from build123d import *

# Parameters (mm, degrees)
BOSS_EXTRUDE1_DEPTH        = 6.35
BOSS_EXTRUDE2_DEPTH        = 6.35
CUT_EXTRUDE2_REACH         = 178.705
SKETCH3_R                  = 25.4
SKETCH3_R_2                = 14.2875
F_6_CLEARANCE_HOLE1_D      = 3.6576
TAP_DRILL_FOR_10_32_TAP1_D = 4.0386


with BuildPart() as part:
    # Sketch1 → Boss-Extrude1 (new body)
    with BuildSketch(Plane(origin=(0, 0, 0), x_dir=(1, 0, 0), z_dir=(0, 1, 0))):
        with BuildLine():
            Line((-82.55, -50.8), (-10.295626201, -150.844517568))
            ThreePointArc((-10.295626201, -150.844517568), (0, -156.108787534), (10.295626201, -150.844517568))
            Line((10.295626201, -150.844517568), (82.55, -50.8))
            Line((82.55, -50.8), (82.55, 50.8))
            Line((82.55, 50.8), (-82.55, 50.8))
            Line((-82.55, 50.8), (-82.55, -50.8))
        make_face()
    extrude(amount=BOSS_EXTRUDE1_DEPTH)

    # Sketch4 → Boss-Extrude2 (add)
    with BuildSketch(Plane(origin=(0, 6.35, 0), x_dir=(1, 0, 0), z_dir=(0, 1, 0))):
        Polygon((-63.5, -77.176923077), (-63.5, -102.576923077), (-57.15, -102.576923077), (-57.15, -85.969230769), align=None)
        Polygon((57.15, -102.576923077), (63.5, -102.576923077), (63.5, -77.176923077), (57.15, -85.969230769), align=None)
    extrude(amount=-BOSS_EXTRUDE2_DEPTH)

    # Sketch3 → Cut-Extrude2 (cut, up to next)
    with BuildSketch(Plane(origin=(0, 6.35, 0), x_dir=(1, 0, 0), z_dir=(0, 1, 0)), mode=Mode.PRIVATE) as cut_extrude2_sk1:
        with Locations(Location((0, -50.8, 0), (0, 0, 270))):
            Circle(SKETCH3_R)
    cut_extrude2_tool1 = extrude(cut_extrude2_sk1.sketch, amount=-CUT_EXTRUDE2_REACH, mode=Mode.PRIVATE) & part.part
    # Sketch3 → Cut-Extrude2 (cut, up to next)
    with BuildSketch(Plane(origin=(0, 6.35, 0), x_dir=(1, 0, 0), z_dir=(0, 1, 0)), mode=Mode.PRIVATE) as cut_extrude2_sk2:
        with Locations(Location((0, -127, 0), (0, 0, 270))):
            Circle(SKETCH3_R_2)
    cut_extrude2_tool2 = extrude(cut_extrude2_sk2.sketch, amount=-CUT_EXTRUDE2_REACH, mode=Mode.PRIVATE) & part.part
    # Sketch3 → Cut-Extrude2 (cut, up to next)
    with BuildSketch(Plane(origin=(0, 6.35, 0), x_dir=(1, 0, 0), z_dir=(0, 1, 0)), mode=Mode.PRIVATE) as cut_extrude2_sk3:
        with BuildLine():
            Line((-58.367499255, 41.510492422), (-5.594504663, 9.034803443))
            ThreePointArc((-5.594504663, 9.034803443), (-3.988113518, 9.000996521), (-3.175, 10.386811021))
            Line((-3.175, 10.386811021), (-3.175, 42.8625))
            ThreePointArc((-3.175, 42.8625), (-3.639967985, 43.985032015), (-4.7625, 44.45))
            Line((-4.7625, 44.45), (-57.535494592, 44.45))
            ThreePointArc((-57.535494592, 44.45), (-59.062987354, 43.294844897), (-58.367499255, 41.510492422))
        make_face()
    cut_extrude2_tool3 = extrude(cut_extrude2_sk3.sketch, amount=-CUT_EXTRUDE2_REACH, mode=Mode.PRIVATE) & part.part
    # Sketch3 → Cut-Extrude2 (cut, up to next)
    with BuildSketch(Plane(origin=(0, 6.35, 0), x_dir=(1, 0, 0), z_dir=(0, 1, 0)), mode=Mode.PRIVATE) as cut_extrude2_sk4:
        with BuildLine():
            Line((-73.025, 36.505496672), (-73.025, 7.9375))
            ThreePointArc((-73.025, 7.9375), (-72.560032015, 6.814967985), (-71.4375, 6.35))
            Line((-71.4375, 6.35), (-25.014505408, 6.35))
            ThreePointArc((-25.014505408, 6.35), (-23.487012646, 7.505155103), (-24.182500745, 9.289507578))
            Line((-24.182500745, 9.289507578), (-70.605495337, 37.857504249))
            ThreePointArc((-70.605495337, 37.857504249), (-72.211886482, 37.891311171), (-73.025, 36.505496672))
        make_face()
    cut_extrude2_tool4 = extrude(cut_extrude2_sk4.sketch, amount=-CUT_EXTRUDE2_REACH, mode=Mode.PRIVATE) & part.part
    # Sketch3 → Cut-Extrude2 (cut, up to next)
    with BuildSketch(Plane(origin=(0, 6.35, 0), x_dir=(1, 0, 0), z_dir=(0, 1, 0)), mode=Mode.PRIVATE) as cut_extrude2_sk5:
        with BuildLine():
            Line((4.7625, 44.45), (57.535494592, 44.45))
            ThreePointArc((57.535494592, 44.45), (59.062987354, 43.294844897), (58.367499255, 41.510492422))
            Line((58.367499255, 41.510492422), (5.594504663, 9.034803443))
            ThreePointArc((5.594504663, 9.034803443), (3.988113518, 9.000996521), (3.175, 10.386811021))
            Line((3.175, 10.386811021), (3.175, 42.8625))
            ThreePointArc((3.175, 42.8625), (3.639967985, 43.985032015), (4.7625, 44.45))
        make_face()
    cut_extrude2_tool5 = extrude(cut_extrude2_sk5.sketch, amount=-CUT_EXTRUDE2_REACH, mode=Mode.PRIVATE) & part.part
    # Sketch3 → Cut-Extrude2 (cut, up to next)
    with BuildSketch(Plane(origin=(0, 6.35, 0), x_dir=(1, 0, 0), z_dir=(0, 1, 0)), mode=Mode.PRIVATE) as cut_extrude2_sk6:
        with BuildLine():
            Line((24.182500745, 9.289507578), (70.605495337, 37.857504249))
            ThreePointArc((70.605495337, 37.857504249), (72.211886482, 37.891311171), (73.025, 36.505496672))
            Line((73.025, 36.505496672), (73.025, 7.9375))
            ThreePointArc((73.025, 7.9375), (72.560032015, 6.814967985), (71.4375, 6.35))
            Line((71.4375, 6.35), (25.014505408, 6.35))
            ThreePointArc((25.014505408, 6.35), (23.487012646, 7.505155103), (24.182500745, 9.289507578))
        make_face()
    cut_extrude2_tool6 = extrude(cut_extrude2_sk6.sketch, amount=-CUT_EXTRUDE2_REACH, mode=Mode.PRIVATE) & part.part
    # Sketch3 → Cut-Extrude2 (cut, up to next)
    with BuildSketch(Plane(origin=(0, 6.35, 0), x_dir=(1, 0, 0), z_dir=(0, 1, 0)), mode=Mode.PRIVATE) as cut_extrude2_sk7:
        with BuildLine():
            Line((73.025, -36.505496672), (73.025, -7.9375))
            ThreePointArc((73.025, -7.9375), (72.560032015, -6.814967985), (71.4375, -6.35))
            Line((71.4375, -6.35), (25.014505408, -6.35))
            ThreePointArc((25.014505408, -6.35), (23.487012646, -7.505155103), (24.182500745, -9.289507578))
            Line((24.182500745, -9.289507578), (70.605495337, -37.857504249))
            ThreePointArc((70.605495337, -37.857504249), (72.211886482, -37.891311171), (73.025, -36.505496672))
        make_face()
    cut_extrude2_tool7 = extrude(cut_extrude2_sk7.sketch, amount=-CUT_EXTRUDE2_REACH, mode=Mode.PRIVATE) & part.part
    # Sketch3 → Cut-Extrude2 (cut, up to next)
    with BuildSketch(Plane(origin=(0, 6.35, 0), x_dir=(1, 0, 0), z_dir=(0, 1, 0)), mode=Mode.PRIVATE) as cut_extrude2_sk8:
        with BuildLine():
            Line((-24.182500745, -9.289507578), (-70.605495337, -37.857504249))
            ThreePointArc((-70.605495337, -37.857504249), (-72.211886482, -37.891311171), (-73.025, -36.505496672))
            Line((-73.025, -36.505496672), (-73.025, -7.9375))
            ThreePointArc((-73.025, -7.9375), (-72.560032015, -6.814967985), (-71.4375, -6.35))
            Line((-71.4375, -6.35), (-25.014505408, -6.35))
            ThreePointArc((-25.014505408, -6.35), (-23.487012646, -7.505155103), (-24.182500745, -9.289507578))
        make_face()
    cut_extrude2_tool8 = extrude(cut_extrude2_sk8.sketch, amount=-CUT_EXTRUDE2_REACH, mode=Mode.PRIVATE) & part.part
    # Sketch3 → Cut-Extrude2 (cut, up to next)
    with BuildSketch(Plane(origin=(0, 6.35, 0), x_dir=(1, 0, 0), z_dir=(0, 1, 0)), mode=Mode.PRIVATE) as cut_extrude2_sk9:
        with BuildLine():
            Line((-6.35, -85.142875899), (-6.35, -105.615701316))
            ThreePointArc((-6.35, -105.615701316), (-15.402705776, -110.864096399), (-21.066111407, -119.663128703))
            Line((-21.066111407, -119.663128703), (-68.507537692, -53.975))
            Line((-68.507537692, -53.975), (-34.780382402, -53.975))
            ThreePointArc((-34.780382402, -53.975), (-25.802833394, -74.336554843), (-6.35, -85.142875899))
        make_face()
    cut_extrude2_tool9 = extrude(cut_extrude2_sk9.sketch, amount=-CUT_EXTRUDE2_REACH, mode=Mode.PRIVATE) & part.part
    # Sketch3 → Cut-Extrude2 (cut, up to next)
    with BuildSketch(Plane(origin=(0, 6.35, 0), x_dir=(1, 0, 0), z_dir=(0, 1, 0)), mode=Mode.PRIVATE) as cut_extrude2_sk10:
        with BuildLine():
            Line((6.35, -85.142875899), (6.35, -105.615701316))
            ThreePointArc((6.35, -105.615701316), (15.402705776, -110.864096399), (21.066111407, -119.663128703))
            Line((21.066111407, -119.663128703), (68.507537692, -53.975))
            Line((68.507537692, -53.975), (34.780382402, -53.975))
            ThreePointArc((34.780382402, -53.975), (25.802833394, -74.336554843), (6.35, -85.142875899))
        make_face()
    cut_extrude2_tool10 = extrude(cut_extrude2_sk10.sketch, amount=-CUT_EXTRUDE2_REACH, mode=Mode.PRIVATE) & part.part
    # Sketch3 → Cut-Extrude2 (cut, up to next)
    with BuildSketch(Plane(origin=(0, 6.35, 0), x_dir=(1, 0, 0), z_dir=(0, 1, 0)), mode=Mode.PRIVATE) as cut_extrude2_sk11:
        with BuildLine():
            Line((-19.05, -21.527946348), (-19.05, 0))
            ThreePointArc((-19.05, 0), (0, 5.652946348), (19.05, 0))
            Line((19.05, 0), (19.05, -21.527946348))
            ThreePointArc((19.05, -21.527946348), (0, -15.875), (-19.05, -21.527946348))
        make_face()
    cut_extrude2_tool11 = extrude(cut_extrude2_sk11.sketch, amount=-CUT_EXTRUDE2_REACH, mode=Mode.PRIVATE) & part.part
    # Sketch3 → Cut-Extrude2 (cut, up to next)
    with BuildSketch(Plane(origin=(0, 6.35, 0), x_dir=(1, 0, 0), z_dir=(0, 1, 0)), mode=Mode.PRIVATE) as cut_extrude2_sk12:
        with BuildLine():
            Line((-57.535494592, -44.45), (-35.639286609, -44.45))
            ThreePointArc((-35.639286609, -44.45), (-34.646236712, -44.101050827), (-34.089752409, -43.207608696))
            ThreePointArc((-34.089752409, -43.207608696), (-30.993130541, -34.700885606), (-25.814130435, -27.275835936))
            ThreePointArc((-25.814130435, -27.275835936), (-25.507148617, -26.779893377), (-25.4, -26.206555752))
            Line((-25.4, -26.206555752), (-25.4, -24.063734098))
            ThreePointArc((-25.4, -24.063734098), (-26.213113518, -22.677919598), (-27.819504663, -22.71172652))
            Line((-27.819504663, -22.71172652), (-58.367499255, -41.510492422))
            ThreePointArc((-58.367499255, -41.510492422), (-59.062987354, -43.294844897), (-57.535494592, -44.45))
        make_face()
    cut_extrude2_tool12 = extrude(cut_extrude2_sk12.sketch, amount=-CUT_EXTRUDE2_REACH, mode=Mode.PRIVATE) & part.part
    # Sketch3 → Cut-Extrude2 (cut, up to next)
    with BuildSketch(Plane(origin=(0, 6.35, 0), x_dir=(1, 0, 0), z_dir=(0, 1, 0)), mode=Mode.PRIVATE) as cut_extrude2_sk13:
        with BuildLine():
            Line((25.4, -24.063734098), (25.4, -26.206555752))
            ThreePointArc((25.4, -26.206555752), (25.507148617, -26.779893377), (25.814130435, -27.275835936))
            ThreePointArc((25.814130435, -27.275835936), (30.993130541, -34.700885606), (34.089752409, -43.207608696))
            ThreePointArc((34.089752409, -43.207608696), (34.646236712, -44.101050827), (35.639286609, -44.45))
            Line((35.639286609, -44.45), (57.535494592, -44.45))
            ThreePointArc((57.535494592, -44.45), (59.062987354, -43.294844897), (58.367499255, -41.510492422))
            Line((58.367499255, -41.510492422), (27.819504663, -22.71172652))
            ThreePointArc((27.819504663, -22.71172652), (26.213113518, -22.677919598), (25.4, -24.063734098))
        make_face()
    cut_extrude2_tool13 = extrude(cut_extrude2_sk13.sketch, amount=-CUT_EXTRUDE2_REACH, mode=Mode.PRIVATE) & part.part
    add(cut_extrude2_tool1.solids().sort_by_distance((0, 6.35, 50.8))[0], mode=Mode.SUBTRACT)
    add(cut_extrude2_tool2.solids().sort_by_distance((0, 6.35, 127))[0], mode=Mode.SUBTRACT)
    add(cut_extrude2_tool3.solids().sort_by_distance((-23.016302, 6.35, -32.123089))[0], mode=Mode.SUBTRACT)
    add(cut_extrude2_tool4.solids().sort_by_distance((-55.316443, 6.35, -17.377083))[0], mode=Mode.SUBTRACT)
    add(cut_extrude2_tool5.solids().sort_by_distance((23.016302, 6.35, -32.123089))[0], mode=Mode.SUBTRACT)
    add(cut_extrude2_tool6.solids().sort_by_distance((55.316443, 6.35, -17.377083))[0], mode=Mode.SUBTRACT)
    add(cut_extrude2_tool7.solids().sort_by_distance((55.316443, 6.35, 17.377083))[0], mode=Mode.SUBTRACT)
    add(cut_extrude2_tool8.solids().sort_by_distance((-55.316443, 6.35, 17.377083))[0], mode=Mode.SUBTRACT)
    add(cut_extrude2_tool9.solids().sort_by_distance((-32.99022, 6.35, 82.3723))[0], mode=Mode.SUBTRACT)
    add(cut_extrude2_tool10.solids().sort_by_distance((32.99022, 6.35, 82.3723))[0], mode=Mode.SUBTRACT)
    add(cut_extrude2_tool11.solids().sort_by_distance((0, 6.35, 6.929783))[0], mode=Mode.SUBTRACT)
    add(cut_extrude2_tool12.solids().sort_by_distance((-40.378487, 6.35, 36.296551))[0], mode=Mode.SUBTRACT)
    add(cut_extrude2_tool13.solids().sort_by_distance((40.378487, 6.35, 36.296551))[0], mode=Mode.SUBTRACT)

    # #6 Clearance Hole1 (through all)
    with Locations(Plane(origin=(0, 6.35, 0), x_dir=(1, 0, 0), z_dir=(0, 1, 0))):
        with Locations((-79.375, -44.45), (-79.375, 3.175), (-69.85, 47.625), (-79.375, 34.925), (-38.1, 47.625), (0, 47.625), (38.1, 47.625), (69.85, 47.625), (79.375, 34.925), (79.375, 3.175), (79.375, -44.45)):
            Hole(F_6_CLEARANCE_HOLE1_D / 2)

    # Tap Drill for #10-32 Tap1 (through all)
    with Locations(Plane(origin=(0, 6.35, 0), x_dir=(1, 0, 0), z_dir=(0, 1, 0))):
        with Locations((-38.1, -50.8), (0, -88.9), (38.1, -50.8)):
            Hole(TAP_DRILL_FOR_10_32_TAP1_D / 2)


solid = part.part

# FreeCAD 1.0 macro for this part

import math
import FreeCAD as App
import Part
import Sketcher

V = App.Vector
Q = App.Units.Quantity

doc = App.newDocument("Part")
body = doc.addObject("PartDesign::Body", "Body")

sketch1 = body.newObject("Sketcher::SketchObject", "Sketch")
sketch1.AttachmentSupport = (doc.getObject("XZ_Plane"), [""])
sketch1.MapMode = "FlatFace"
sketch1.addGeometry([
    Part.LineSegment(V(-83, 51, 0), V(-10, 151, 0)),
    Part.ArcOfCircle(Part.Circle(V(0, 143, 0), V(0, 0, 1), 13), math.radians(36), math.radians(144)),
    Part.LineSegment(V(10, 151, 0), V(83, 51, 0)),
    Part.LineSegment(V(83, 51, 0), V(83, -51, 0)),
    Part.LineSegment(V(83, -51, 0), V(-83, -51, 0)),
    Part.LineSegment(V(-83, -51, 0), V(-83, 51, 0)),
], False)
sketch1.addConstraint([
    Sketcher.Constraint("Tangent", 0, 2, 1, 2),
    Sketcher.Constraint("Tangent", 1, 1, 2, 1),
    Sketcher.Constraint("Coincident", 2, 2, 3, 1),
    Sketcher.Constraint("Coincident", 3, 2, 4, 1),
    Sketcher.Constraint("Coincident", 4, 2, 5, 1),
    Sketcher.Constraint("Coincident", 5, 2, 0, 1),
    Sketcher.Constraint("Vertical", 3),
    Sketcher.Constraint("Horizontal", 4),
    Sketcher.Constraint("Vertical", 5),
    Sketcher.Constraint("Symmetric", 2, 2, 4, 2, -1, 1),
    Sketcher.Constraint("Symmetric", 0, 2, 1, 1, -2),
    Sketcher.Constraint("Radius", 1, Q("0.5 in")),
    Sketcher.Constraint("DistanceY", 3, 2, 3, 1, Q("4 in")),
    Sketcher.Constraint("DistanceX", 4, 2, 4, 1, Q("6.5 in")),
    Sketcher.Constraint("DistanceY", 1, 3, 0, 2, 7.43573),
])
pad1 = body.newObject("PartDesign::Pad", "Pad")
pad1.Profile = sketch1
pad1.Length = Q("0.25 in")
pad1.Reversed = True

sketch2 = body.newObject("Sketcher::SketchObject", "Sketch001")
sketch2.AttachmentSupport = (doc.getObject("XZ_Plane"), [""])
sketch2.MapMode = "FlatFace"
sketch2.AttachmentOffset = App.Placement(V(0, 0, -0.25 * 25.4), App.Rotation())
sketch2.addGeometry([
    Part.LineSegment(V(-64, 77, 0), V(-64, 103, 0)),
    Part.LineSegment(V(-64, 103, 0), V(-57, 103, 0)),
    Part.LineSegment(V(-57, 103, 0), V(-57, 86, 0)),
    Part.LineSegment(V(-57, 86, 0), V(-64, 77, 0)),
    Part.LineSegment(V(57, 103, 0), V(64, 103, 0)),
    Part.LineSegment(V(64, 103, 0), V(64, 77, 0)),
    Part.LineSegment(V(64, 77, 0), V(57, 86, 0)),
    Part.LineSegment(V(57, 86, 0), V(57, 103, 0)),
], False)
sketch2.addConstraint([
    Sketcher.Constraint("Coincident", 0, 2, 1, 1),
    Sketcher.Constraint("Coincident", 1, 2, 2, 1),
    Sketcher.Constraint("Coincident", 2, 2, 3, 1),
    Sketcher.Constraint("Coincident", 3, 2, 0, 1),
    Sketcher.Constraint("Coincident", 4, 2, 5, 1),
    Sketcher.Constraint("Coincident", 5, 2, 6, 1),
    Sketcher.Constraint("Coincident", 6, 2, 7, 1),
    Sketcher.Constraint("Coincident", 7, 2, 4, 1),
    Sketcher.Constraint("Vertical", 0),
    Sketcher.Constraint("Horizontal", 1),
    Sketcher.Constraint("Vertical", 2),
    Sketcher.Constraint("Horizontal", 4),
    Sketcher.Constraint("Vertical", 5),
    Sketcher.Constraint("Vertical", 7),
    Sketcher.Constraint("Symmetric", 0, 2, 4, 2, -2),
    Sketcher.Constraint("Symmetric", 2, 2, 6, 2, -2),
    Sketcher.Constraint("Horizontal", 3, 2, 5, 2),
    Sketcher.Constraint("DistanceY", 0, 1, 0, 2, Q("1 in")),
    Sketcher.Constraint("DistanceX", 0, 2, 4, 2, Q("5 in")),
    Sketcher.Constraint("DistanceX", 1, 1, 1, 2, Q("0.25 in")),
    Sketcher.Constraint("DistanceY", 2, 2, 2, 1, 16.607692),
    Sketcher.Constraint("DistanceY", -1, 1, 2, 2, 85.969231),
])
pad2 = body.newObject("PartDesign::Pad", "Pad001")
pad2.Profile = sketch2
pad2.Length = Q("0.25 in")

sketch3 = body.newObject("Sketcher::SketchObject", "Sketch002")
sketch3.AttachmentSupport = (doc.getObject("XZ_Plane"), [""])
sketch3.MapMode = "FlatFace"
sketch3.AttachmentOffset = App.Placement(V(0, 0, -0.25 * 25.4), App.Rotation())
sketch3.addGeometry(Part.Circle(V(0, 51, 0), V(0, 0, 1), 25), False)
sketch3.addConstraint([
    Sketcher.Constraint("PointOnObject", 0, 3, -2),
    Sketcher.Constraint("Diameter", 0, Q("2 in")),
    Sketcher.Constraint("DistanceY", -1, 1, 0, 3, Q("2 in")),
])
pocket1 = body.newObject("PartDesign::Pocket", "Pocket")
pocket1.Profile = sketch3
pocket1.Type = "UpToFirst"
pocket1.Reversed = True

sketch4 = body.newObject("Sketcher::SketchObject", "Sketch003")
sketch4.AttachmentSupport = (doc.getObject("XZ_Plane"), [""])
sketch4.MapMode = "FlatFace"
sketch4.AttachmentOffset = App.Placement(V(0, 0, -0.25 * 25.4), App.Rotation())
sketch4.addGeometry(Part.Circle(V(0, 127, 0), V(0, 0, 1), 14), False)
sketch4.addConstraint([
    Sketcher.Constraint("PointOnObject", 0, 3, -2),
    Sketcher.Constraint("Diameter", 0, Q("1.125 in")),
    Sketcher.Constraint("DistanceY", -1, 1, 0, 3, Q("5 in")),
])
pocket2 = body.newObject("PartDesign::Pocket", "Pocket001")
pocket2.Profile = sketch4
pocket2.Type = "UpToFirst"
pocket2.Reversed = True

sketch5 = body.newObject("Sketcher::SketchObject", "Sketch004")
sketch5.AttachmentSupport = (doc.getObject("XZ_Plane"), [""])
sketch5.MapMode = "FlatFace"
sketch5.AttachmentOffset = App.Placement(V(0, 0, -0.25 * 25.4), App.Rotation())
sketch5.addGeometry([
    Part.LineSegment(V(-58.4, -41.5, 0), V(-5.6, -9, 0)),
    Part.ArcOfCircle(Part.Circle(V(-4.8, -10.4, 0), V(0, 0, 1), 1.6), math.radians(0), math.radians(122)),
    Part.LineSegment(V(-3.2, -10.4, 0), V(-3.2, -42.9, 0)),
    Part.ArcOfCircle(Part.Circle(V(-4.8, -42.9, 0), V(0, 0, 1), 1.6), math.radians(-90), math.radians(0)),
    Part.LineSegment(V(-4.8, -44.5, 0), V(-57.5, -44.5, 0)),
    Part.ArcOfCircle(Part.Circle(V(-57.5, -42.9, 0), V(0, 0, 1), 1.6), math.radians(122), math.radians(270)),
], False)
sketch5.addConstraint([
    Sketcher.Constraint("Tangent", 0, 2, 1, 2),
    Sketcher.Constraint("Tangent", 1, 1, 2, 1),
    Sketcher.Constraint("Tangent", 2, 2, 3, 2),
    Sketcher.Constraint("Tangent", 3, 1, 4, 1),
    Sketcher.Constraint("Tangent", 4, 2, 5, 2),
    Sketcher.Constraint("Tangent", 5, 1, 0, 1),
    Sketcher.Constraint("Vertical", 2),
    Sketcher.Constraint("Horizontal", 4),
    Sketcher.Constraint("Equal", 1, 3),
    Sketcher.Constraint("Equal", 3, 5),
    Sketcher.Constraint("Radius", 1, Q("0.0625 in")),
    Sketcher.Constraint("DistanceY", 3, 1, -1, 1, Q("1.75 in")),
    Sketcher.Constraint("DistanceX", 1, 3, -1, 1, Q("0.1875 in")),
    Sketcher.Constraint("DistanceY", 2, 2, 2, 1, 32.475689),
    Sketcher.Constraint("DistanceX", 5, 1, -1, 1, 58.367499),
])
pocket3 = body.newObject("PartDesign::Pocket", "Pocket002")
pocket3.Profile = sketch5
pocket3.Type = "UpToFirst"
pocket3.Reversed = True

sketch6 = body.newObject("Sketcher::SketchObject", "Sketch005")
sketch6.AttachmentSupport = (doc.getObject("XZ_Plane"), [""])
sketch6.MapMode = "FlatFace"
sketch6.AttachmentOffset = App.Placement(V(0, 0, -0.25 * 25.4), App.Rotation())
sketch6.addGeometry([
    Part.LineSegment(V(-73.025, -36.505497, 0), V(-73.025, -7.9375, 0)),
    Part.ArcOfCircle(Part.Circle(V(-71.4375, -7.9375, 0), V(0, 0, 1), 1.5875), math.radians(90), math.radians(180)),
    Part.LineSegment(V(-71.4375, -6.35, 0), V(-25.014505, -6.35, 0)),
    Part.ArcOfCircle(Part.Circle(V(-25.014505, -7.9375, 0), V(0, 0, 1), 1.5875), math.radians(-58.392498), math.radians(90)),
    Part.LineSegment(V(-24.182501, -9.289508, 0), V(-70.605495, -37.857504, 0)),
    Part.ArcOfCircle(Part.Circle(V(-71.4375, -36.505497, 0), V(0, 0, 1), 1.5875), math.radians(180), math.radians(301.607502)),
], False)
sketch6.addConstraint([
    Sketcher.Constraint("Tangent", 0, 2, 1, 2),
    Sketcher.Constraint("Tangent", 1, 1, 2, 1),
    Sketcher.Constraint("Tangent", 2, 2, 3, 2),
    Sketcher.Constraint("Tangent", 3, 1, 4, 1),
    Sketcher.Constraint("Tangent", 4, 2, 5, 2),
    Sketcher.Constraint("Tangent", 5, 1, 0, 1),
    Sketcher.Constraint("Vertical", 0),
    Sketcher.Constraint("Horizontal", 2),
    Sketcher.Constraint("Equal", 1, 3),
    Sketcher.Constraint("Equal", 3, 5),
    Sketcher.Constraint("Radius", 1, Q("0.0625 in")),
    Sketcher.Constraint("DistanceY", 1, 1, -1, 1, Q("0.25 in")),
    Sketcher.Constraint("DistanceX", 1, 3, -1, 1, Q("2.8125 in")),
    Sketcher.Constraint("DistanceX", 3, 1, -1, 1, 24.182501),
    Sketcher.Constraint("DistanceX", 2, 1, 2, 2, 46.422995),
])
pocket4 = body.newObject("PartDesign::Pocket", "Pocket003")
pocket4.Profile = sketch6
pocket4.Type = "UpToFirst"
pocket4.Reversed = True

sketch7 = body.newObject("Sketcher::SketchObject", "Sketch006")
sketch7.AttachmentSupport = (doc.getObject("XZ_Plane"), [""])
sketch7.MapMode = "FlatFace"
sketch7.AttachmentOffset = App.Placement(V(0, 0, -0.25 * 25.4), App.Rotation())
sketch7.addGeometry([
    Part.LineSegment(V(57.5, -44.5, 0), V(4.8, -44.5, 0)),
    Part.ArcOfCircle(Part.Circle(V(4.8, -42.9, 0), V(0, 0, 1), 1.6), math.radians(180), math.radians(270)),
    Part.LineSegment(V(3.2, -42.9, 0), V(3.2, -10.4, 0)),
    Part.ArcOfCircle(Part.Circle(V(4.8, -10.4, 0), V(0, 0, 1), 1.6), math.radians(58), math.radians(180)),
    Part.LineSegment(V(5.6, -9, 0), V(58.4, -41.5, 0)),
    Part.ArcOfCircle(Part.Circle(V(57.5, -42.9, 0), V(0, 0, 1), 1.6), math.radians(-90), math.radians(58)),
], False)
sketch7.addConstraint([
    Sketcher.Constraint("Tangent", 0, 2, 1, 2),
    Sketcher.Constraint("Tangent", 1, 1, 2, 1),
    Sketcher.Constraint("Tangent", 2, 2, 3, 2),
    Sketcher.Constraint("Tangent", 3, 1, 4, 1),
    Sketcher.Constraint("Tangent", 4, 2, 5, 2),
    Sketcher.Constraint("Tangent", 5, 1, 0, 1),
    Sketcher.Constraint("Horizontal", 0),
    Sketcher.Constraint("Vertical", 2),
    Sketcher.Constraint("Equal", 1, 3),
    Sketcher.Constraint("Equal", 3, 5),
    Sketcher.Constraint("Radius", 1, Q("0.0625 in")),
    Sketcher.Constraint("DistanceY", 0, 2, -1, 1, Q("1.75 in")),
    Sketcher.Constraint("DistanceX", -1, 1, 1, 3, Q("0.1875 in")),
    Sketcher.Constraint("DistanceY", 2, 1, 2, 2, 32.475689),
    Sketcher.Constraint("DistanceX", -1, 1, 4, 2, 58.367499),
])
pocket5 = body.newObject("PartDesign::Pocket", "Pocket004")
pocket5.Profile = sketch7
pocket5.Type = "UpToFirst"
pocket5.Reversed = True

sketch8 = body.newObject("Sketcher::SketchObject", "Sketch007")
sketch8.AttachmentSupport = (doc.getObject("XZ_Plane"), [""])
sketch8.MapMode = "FlatFace"
sketch8.AttachmentOffset = App.Placement(V(0, 0, -0.25 * 25.4), App.Rotation())
sketch8.addGeometry([
    Part.LineSegment(V(70.605495, -37.857504, 0), V(24.182501, -9.289508, 0)),
    Part.ArcOfCircle(Part.Circle(V(25.014505, -7.9375, 0), V(0, 0, 1), 1.5875), math.radians(90), math.radians(238.392498)),
    Part.LineSegment(V(25.014505, -6.35, 0), V(71.4375, -6.35, 0)),
    Part.ArcOfCircle(Part.Circle(V(71.4375, -7.9375, 0), V(0, 0, 1), 1.5875), math.radians(0), math.radians(90)),
    Part.LineSegment(V(73.025, -7.9375, 0), V(73.025, -36.505497, 0)),
    Part.ArcOfCircle(Part.Circle(V(71.4375, -36.505497, 0), V(0, 0, 1), 1.5875), math.radians(-121.607502), math.radians(0)),
], False)
sketch8.addConstraint([
    Sketcher.Constraint("Coincident", 0, 2, 1, 2),
    Sketcher.Constraint("Coincident", 1, 1, 2, 1),
    Sketcher.Constraint("Coincident", 2, 2, 3, 2),
    Sketcher.Constraint("Coincident", 3, 1, 4, 1),
    Sketcher.Constraint("Coincident", 4, 2, 5, 2),
    Sketcher.Constraint("Coincident", 5, 1, 0, 1),
    Sketcher.Constraint("Horizontal", 2),
    Sketcher.Constraint("Vertical", 4),
    Sketcher.Constraint("Radius", 1, Q("0.0625 in")),
    Sketcher.Constraint("Radius", 3, Q("0.0625 in")),
    Sketcher.Constraint("Radius", 5, Q("0.0625 in")),
    Sketcher.Constraint("DistanceY", 1, 1, -1, 1, Q("0.25 in")),
    Sketcher.Constraint("DistanceX", -1, 1, 3, 3, Q("2.8125 in")),
    Sketcher.Constraint("DistanceX", -1, 1, 2, 2, Q("2.8125 in")),
    Sketcher.Constraint("DistanceY", 3, 1, -1, 1, Q("0.3125 in")),
    Sketcher.Constraint("DistanceX", -1, 1, 0, 2, 24.182501),
    Sketcher.Constraint("DistanceX", 2, 1, 2, 2, 46.422995),
    Sketcher.Constraint("DistanceY", 4, 2, 4, 1, 28.567997),
    Sketcher.Constraint("DistanceY", 5, 3, 0, 2, 27.215989),
    Sketcher.Constraint("Distance", 0, 54.508943),
    Sketcher.Constraint("DistanceX", -1, 1, 1, 3, 25.014505),
])
pocket6 = body.newObject("PartDesign::Pocket", "Pocket005")
pocket6.Profile = sketch8
pocket6.Type = "UpToFirst"
pocket6.Reversed = True

sketch9 = body.newObject("Sketcher::SketchObject", "Sketch008")
sketch9.AttachmentSupport = (doc.getObject("XZ_Plane"), [""])
sketch9.MapMode = "FlatFace"
sketch9.AttachmentOffset = App.Placement(V(0, 0, -0.25 * 25.4), App.Rotation())
sketch9.addGeometry([
    Part.LineSegment(V(73.025, 36.505497, 0), V(73.025, 7.9375, 0)),
    Part.ArcOfCircle(Part.Circle(V(71.4375, 7.9375, 0), V(0, 0, 1), 1.5875), math.radians(-90), math.radians(0)),
    Part.LineSegment(V(71.4375, 6.35, 0), V(25.014505, 6.35, 0)),
    Part.ArcOfCircle(Part.Circle(V(25.014505, 7.9375, 0), V(0, 0, 1), 1.5875), math.radians(121.607502), math.radians(270)),
    Part.LineSegment(V(24.182501, 9.289508, 0), V(70.605495, 37.857504, 0)),
    Part.ArcOfCircle(Part.Circle(V(71.4375, 36.505497, 0), V(0, 0, 1), 1.5875), math.radians(0), math.radians(121.607502)),
], False)
sketch9.addConstraint([
    Sketcher.Constraint("Coincident", 0, 2, 1, 2),
    Sketcher.Constraint("Coincident", 1, 1, 2, 1),
    Sketcher.Constraint("Coincident", 2, 2, 3, 2),
    Sketcher.Constraint("Coincident", 3, 1, 4, 1),
    Sketcher.Constraint("Coincident", 4, 2, 5, 2),
    Sketcher.Constraint("Coincident", 5, 1, 0, 1),
    Sketcher.Constraint("Vertical", 0),
    Sketcher.Constraint("Horizontal", 2),
    Sketcher.Constraint("Radius", 1, Q("0.0625 in")),
    Sketcher.Constraint("Radius", 3, Q("0.0625 in")),
    Sketcher.Constraint("Radius", 5, Q("0.0625 in")),
    Sketcher.Constraint("DistanceY", -1, 1, 1, 1, Q("0.25 in")),
    Sketcher.Constraint("DistanceX", -1, 1, 1, 3, Q("2.8125 in")),
    Sketcher.Constraint("DistanceY", -1, 1, 0, 2, Q("0.3125 in")),
    Sketcher.Constraint("DistanceX", -1, 1, 1, 1, Q("2.8125 in")),
    Sketcher.Constraint("DistanceX", -1, 1, 3, 1, 24.182501),
    Sketcher.Constraint("DistanceX", 2, 2, 2, 1, 46.422995),
    Sketcher.Constraint("DistanceY", 0, 2, 0, 1, 28.567997),
    Sketcher.Constraint("Distance", 4, 54.508943),
    Sketcher.Constraint("DistanceX", -1, 1, 3, 3, 25.014505),
    Sketcher.Constraint("DistanceY", -1, 1, 5, 3, 36.505497),
])
pocket7 = body.newObject("PartDesign::Pocket", "Pocket006")
pocket7.Profile = sketch9
pocket7.Type = "UpToFirst"
pocket7.Reversed = True

sketch10 = body.newObject("Sketcher::SketchObject", "Sketch009")
sketch10.AttachmentSupport = (doc.getObject("XZ_Plane"), [""])
sketch10.MapMode = "FlatFace"
sketch10.AttachmentOffset = App.Placement(V(0, 0, -0.25 * 25.4), App.Rotation())
sketch10.addGeometry([
    Part.LineSegment(V(-70.605495, 37.857504, 0), V(-24.182501, 9.289508, 0)),
    Part.ArcOfCircle(Part.Circle(V(-25.014505, 7.9375, 0), V(0, 0, 1), 1.5875), math.radians(-90), math.radians(58.392498)),
    Part.LineSegment(V(-25.014505, 6.35, 0), V(-71.4375, 6.35, 0)),
    Part.ArcOfCircle(Part.Circle(V(-71.4375, 7.9375, 0), V(0, 0, 1), 1.5875), math.radians(180), math.radians(270)),
    Part.LineSegment(V(-73.025, 7.9375, 0), V(-73.025, 36.505497, 0)),
    Part.ArcOfCircle(Part.Circle(V(-71.4375, 36.505497, 0), V(0, 0, 1), 1.5875), math.radians(58.392498), math.radians(180)),
], False)
sketch10.addConstraint([
    Sketcher.Constraint("Tangent", 0, 2, 1, 2),
    Sketcher.Constraint("Tangent", 1, 1, 2, 1),
    Sketcher.Constraint("Tangent", 2, 2, 3, 2),
    Sketcher.Constraint("Tangent", 3, 1, 4, 1),
    Sketcher.Constraint("Tangent", 4, 2, 5, 2),
    Sketcher.Constraint("Tangent", 5, 1, 0, 1),
    Sketcher.Constraint("Horizontal", 2),
    Sketcher.Constraint("Vertical", 4),
    Sketcher.Constraint("Equal", 1, 3),
    Sketcher.Constraint("Equal", 3, 5),
    Sketcher.Constraint("Radius", 1, Q("0.0625 in")),
    Sketcher.Constraint("DistanceY", -1, 1, 1, 1, Q("0.25 in")),
    Sketcher.Constraint("DistanceX", 3, 3, -1, 1, Q("2.8125 in")),
    Sketcher.Constraint("DistanceX", 0, 2, -1, 1, 24.182501),
    Sketcher.Constraint("DistanceX", 2, 2, 2, 1, 46.422995),
])
pocket8 = body.newObject("PartDesign::Pocket", "Pocket007")
pocket8.Profile = sketch10
pocket8.Type = "UpToFirst"
pocket8.Reversed = True

sketch11 = body.newObject("Sketcher::SketchObject", "Sketch010")
sketch11.AttachmentSupport = (doc.getObject("XZ_Plane"), [""])
sketch11.MapMode = "FlatFace"
sketch11.AttachmentOffset = App.Placement(V(0, 0, -0.25 * 25.4), App.Rotation())
sketch11.addGeometry([
    Part.LineSegment(V(-6, 106, 0), V(-6, 85, 0)),
    Part.ArcOfCircle(Part.Circle(V(0, 51, 0), V(0, 0, 1), 35), math.radians(100), math.radians(175)),
    Part.LineSegment(V(-35, 54, 0), V(-69, 54, 0)),
    Part.LineSegment(V(-69, 54, 0), V(-21, 120, 0)),
    Part.ArcOfCircle(Part.Circle(V(0, 127, 0), V(0, 0, 1), 22), math.radians(-161), math.radians(-107)),
], False)
sketch11.addConstraint([
    Sketcher.Constraint("Coincident", 0, 2, 1, 1),
    Sketcher.Constraint("Coincident", 1, 2, 2, 1),
    Sketcher.Constraint("Coincident", 2, 2, 3, 1),
    Sketcher.Constraint("Coincident", 3, 2, 4, 1),
    Sketcher.Constraint("Coincident", 4, 2, 0, 1),
    Sketcher.Constraint("Vertical", 0),
    Sketcher.Constraint("Horizontal", 2),
    Sketcher.Constraint("PointOnObject", 1, 3, -2),
    Sketcher.Constraint("PointOnObject", 4, 3, -2),
    Sketcher.Constraint("DistanceY", -1, 1, 1, 3, Q("2 in")),
    Sketcher.Constraint("DistanceY", -1, 1, 4, 3, Q("5 in")),
    Sketcher.Constraint("Radius", 1, Q("1.375 in")),
    Sketcher.Constraint("DistanceX", 0, 2, -1, 1, Q("0.25 in")),
    Sketcher.Constraint("DistanceY", -1, 1, 1, 2, Q("2.125 in")),
    Sketcher.Constraint("Radius", 4, 22.30719),
    Sketcher.Constraint("Distance", 3, 81.028508),
    Sketcher.Constraint("DistanceX", 2, 2, 2, 1, 33.727155),
])
pocket9 = body.newObject("PartDesign::Pocket", "Pocket008")
pocket9.Profile = sketch11
pocket9.Type = "UpToFirst"
pocket9.Reversed = True

sketch12 = body.newObject("Sketcher::SketchObject", "Sketch011")
sketch12.AttachmentSupport = (doc.getObject("XZ_Plane"), [""])
sketch12.MapMode = "FlatFace"
sketch12.AttachmentOffset = App.Placement(V(0, 0, -0.25 * 25.4), App.Rotation())
sketch12.addGeometry([
    Part.LineSegment(V(6, 85, 0), V(6, 106, 0)),
    Part.ArcOfCircle(Part.Circle(V(0, 127, 0), V(0, 0, 1), 22), math.radians(-73), math.radians(-19)),
    Part.LineSegment(V(21, 120, 0), V(69, 54, 0)),
    Part.LineSegment(V(69, 54, 0), V(35, 54, 0)),
    Part.ArcOfCircle(Part.Circle(V(0, 51, 0), V(0, 0, 1), 35), math.radians(5), math.radians(80)),
], False)
sketch12.addConstraint([
    Sketcher.Constraint("Coincident", 0, 2, 1, 1),
    Sketcher.Constraint("Coincident", 1, 2, 2, 1),
    Sketcher.Constraint("Coincident", 2, 2, 3, 1),
    Sketcher.Constraint("Coincident", 3, 2, 4, 1),
    Sketcher.Constraint("Coincident", 4, 2, 0, 1),
    Sketcher.Constraint("Vertical", 0),
    Sketcher.Constraint("Horizontal", 3),
    Sketcher.Constraint("PointOnObject", 1, 3, -2),
    Sketcher.Constraint("PointOnObject", 4, 3, -2),
    Sketcher.Constraint("DistanceY", -1, 1, 1, 3, Q("5 in")),
    Sketcher.Constraint("DistanceY", -1, 1, 4, 3, Q("2 in")),
    Sketcher.Constraint("Radius", 4, Q("1.375 in")),
    Sketcher.Constraint("DistanceX", -1, 1, 0, 2, Q("0.25 in")),
    Sketcher.Constraint("DistanceY", -1, 1, 2, 2, Q("2.125 in")),
    Sketcher.Constraint("Radius", 1, 22.30719),
    Sketcher.Constraint("Distance", 2, 81.028508),
    Sketcher.Constraint("DistanceX", 3, 2, 3, 1, 33.727155),
])
pocket10 = body.newObject("PartDesign::Pocket", "Pocket009")
pocket10.Profile = sketch12
pocket10.Type = "UpToFirst"
pocket10.Reversed = True

sketch13 = body.newObject("Sketcher::SketchObject", "Sketch012")
sketch13.AttachmentSupport = (doc.getObject("XZ_Plane"), [""])
sketch13.MapMode = "FlatFace"
sketch13.AttachmentOffset = App.Placement(V(0, 0, -0.25 * 25.4), App.Rotation())
sketch13.addGeometry([
    Part.LineSegment(V(-19, 0, 0), V(-19, 22, 0)),
    Part.ArcOfCircle(Part.Circle(V(0, 51, 0), V(0, 0, 1), 35), math.radians(-123), math.radians(-57)),
    Part.LineSegment(V(19, 22, 0), V(19, 0, 0)),
    Part.ArcOfCircle(Part.Circle(V(0, 29, 0), V(0, 0, 1), 35), math.radians(-123), math.radians(-57)),
], False)
sketch13.addConstraint([
    Sketcher.Constraint("Coincident", 0, 2, 1, 1),
    Sketcher.Constraint("Coincident", 1, 2, 2, 1),
    Sketcher.Constraint("Coincident", 2, 2, 3, 2),
    Sketcher.Constraint("Coincident", 3, 1, 0, 1),
    Sketcher.Constraint("Vertical", 0),
    Sketcher.Constraint("Vertical", 2),
    Sketcher.Constraint("Equal", 1, 3),
    Sketcher.Constraint("Symmetric", 2, 2, 3, 1, -1, 1),
    Sketcher.Constraint("PointOnObject", 1, 3, -2),
    Sketcher.Constraint("PointOnObject", 3, 3, -2),
    Sketcher.Constraint("DistanceY", -1, 1, 1, 3, Q("2 in")),
    Sketcher.Constraint("Radius", 1, Q("1.375 in")),
    Sketcher.Constraint("DistanceX", 0, 2, 1, 2, Q("1.5 in")),
])
pocket11 = body.newObject("PartDesign::Pocket", "Pocket010")
pocket11.Profile = sketch13
pocket11.Type = "UpToFirst"
pocket11.Reversed = True

sketch14 = body.newObject("Sketcher::SketchObject", "Sketch013")
sketch14.AttachmentSupport = (doc.getObject("XZ_Plane"), [""])
sketch14.MapMode = "FlatFace"
sketch14.AttachmentOffset = App.Placement(V(0, 0, -0.25 * 25.4), App.Rotation())
sketch14.addGeometry([
    Part.LineSegment(V(-57.5, 44.5, 0), V(-35.6, 44.5, 0)),
    Part.ArcOfCircle(Part.Circle(V(-35.6, 42.9, 0), V(0, 0, 1), 1.6), math.radians(13), math.radians(90)),
    Part.ArcOfCircle(Part.Circle(V(0, 50.8, 0), V(0, 0, 1), 34.9), math.radians(-167), math.radians(-138)),
    Part.ArcOfCircle(Part.Circle(V(-27, 26.2, 0), V(0, 0, 1), 1.6), math.radians(0), math.radians(42)),
    Part.LineSegment(V(-25.4, 26.2, 0), V(-25.4, 24.1, 0)),
    Part.ArcOfCircle(Part.Circle(V(-27, 24.1, 0), V(0, 0, 1), 1.6), math.radians(-122), math.radians(0)),
    Part.LineSegment(V(-27.8, 22.7, 0), V(-58.4, 41.5, 0)),
    Part.ArcOfCircle(Part.Circle(V(-57.5, 42.9, 0), V(0, 0, 1), 1.6), math.radians(90), math.radians(238)),
], False)
sketch14.addConstraint([
    Sketcher.Constraint("Tangent", 0, 2, 1, 2),
    Sketcher.Constraint("Tangent", 1, 1, 2, 1),
    Sketcher.Constraint("Tangent", 2, 2, 3, 2),
    Sketcher.Constraint("Tangent", 3, 1, 4, 1),
    Sketcher.Constraint("Tangent", 4, 2, 5, 2),
    Sketcher.Constraint("Tangent", 5, 1, 6, 1),
    Sketcher.Constraint("Tangent", 6, 2, 7, 2),
    Sketcher.Constraint("Tangent", 7, 1, 0, 1),
    Sketcher.Constraint("Horizontal", 0),
    Sketcher.Constraint("Vertical", 4),
    Sketcher.Constraint("Equal", 1, 3),
    Sketcher.Constraint("Equal", 3, 5),
    Sketcher.Constraint("Equal", 5, 7),
    Sketcher.Constraint("PointOnObject", 2, 3, -2),
    Sketcher.Constraint("DistanceY", -1, 1, 2, 3, Q("2 in")),
    Sketcher.Constraint("DistanceX", 3, 1, -1, 1, Q("1 in")),
    Sketcher.Constraint("Radius", 1, Q("0.0625 in")),
    Sketcher.Constraint("Radius", 2, Q("1.375 in")),
    Sketcher.Constraint("DistanceY", -1, 1, 0, 2, Q("1.75 in")),
    Sketcher.Constraint("DistanceY", 4, 2, 4, 1, 2.142822),
    Sketcher.Constraint("DistanceX", 6, 2, -1, 1, 58.367499),
])
pocket12 = body.newObject("PartDesign::Pocket", "Pocket011")
pocket12.Profile = sketch14
pocket12.Type = "UpToFirst"
pocket12.Reversed = True

sketch15 = body.newObject("Sketcher::SketchObject", "Sketch014")
sketch15.AttachmentSupport = (doc.getObject("XZ_Plane"), [""])
sketch15.MapMode = "FlatFace"
sketch15.AttachmentOffset = App.Placement(V(0, 0, -0.25 * 25.4), App.Rotation())
sketch15.addGeometry([
    Part.LineSegment(V(25.4, 24.1, 0), V(25.4, 26.2, 0)),
    Part.ArcOfCircle(Part.Circle(V(27, 26.2, 0), V(0, 0, 1), 1.6), math.radians(138), math.radians(180)),
    Part.ArcOfCircle(Part.Circle(V(0, 50.8, 0), V(0, 0, 1), 34.9), math.radians(-42), math.radians(-13)),
    Part.ArcOfCircle(Part.Circle(V(35.6, 42.9, 0), V(0, 0, 1), 1.6), math.radians(90), math.radians(167)),
    Part.LineSegment(V(35.6, 44.5, 0), V(57.5, 44.5, 0)),
    Part.ArcOfCircle(Part.Circle(V(57.5, 42.9, 0), V(0, 0, 1), 1.6), math.radians(-58), math.radians(90)),
    Part.LineSegment(V(58.4, 41.5, 0), V(27.8, 22.7, 0)),
    Part.ArcOfCircle(Part.Circle(V(27, 24.1, 0), V(0, 0, 1), 1.6), math.radians(180), math.radians(302)),
], False)
sketch15.addConstraint([
    Sketcher.Constraint("Tangent", 0, 2, 1, 2),
    Sketcher.Constraint("Tangent", 1, 1, 2, 1),
    Sketcher.Constraint("Tangent", 2, 2, 3, 2),
    Sketcher.Constraint("Tangent", 3, 1, 4, 1),
    Sketcher.Constraint("Tangent", 4, 2, 5, 2),
    Sketcher.Constraint("Tangent", 5, 1, 6, 1),
    Sketcher.Constraint("Tangent", 6, 2, 7, 2),
    Sketcher.Constraint("Tangent", 7, 1, 0, 1),
    Sketcher.Constraint("Vertical", 0),
    Sketcher.Constraint("Horizontal", 4),
    Sketcher.Constraint("Equal", 1, 3),
    Sketcher.Constraint("Equal", 3, 5),
    Sketcher.Constraint("Equal", 5, 7),
    Sketcher.Constraint("PointOnObject", 2, 3, -2),
    Sketcher.Constraint("DistanceY", -1, 1, 2, 3, Q("2 in")),
    Sketcher.Constraint("DistanceX", -1, 1, 0, 2, Q("1 in")),
    Sketcher.Constraint("Radius", 1, Q("0.0625 in")),
    Sketcher.Constraint("Radius", 2, Q("1.375 in")),
    Sketcher.Constraint("DistanceY", -1, 1, 3, 1, Q("1.75 in")),
    Sketcher.Constraint("DistanceY", 0, 1, 0, 2, 2.142822),
    Sketcher.Constraint("DistanceX", -1, 1, 5, 1, 58.367499),
])
pocket13 = body.newObject("PartDesign::Pocket", "Pocket012")
pocket13.Profile = sketch15
pocket13.Type = "UpToFirst"
pocket13.Reversed = True

sketch16 = body.newObject("Sketcher::SketchObject", "Sketch015")
sketch16.AttachmentSupport = (doc.getObject("XZ_Plane"), [""])
sketch16.MapMode = "FlatFace"
sketch16.AttachmentOffset = App.Placement(V(0, 0, -0.25 * 25.4), App.Rotation())
sketch16.addGeometry([
    Part.Circle(V(-79.4, 44.5, 0), V(0, 0, 1), 1.8),
    Part.Circle(V(-79.4, -3.2, 0), V(0, 0, 1), 1.8),
    Part.Circle(V(-69.8, -47.6, 0), V(0, 0, 1), 1.8),
    Part.Circle(V(-79.4, -34.9, 0), V(0, 0, 1), 1.8),
    Part.Circle(V(-38.1, -47.6, 0), V(0, 0, 1), 1.8),
    Part.Circle(V(0, -47.6, 0), V(0, 0, 1), 1.8),
    Part.Circle(V(38.1, -47.6, 0), V(0, 0, 1), 1.8),
    Part.Circle(V(69.8, -47.6, 0), V(0, 0, 1), 1.8),
    Part.Circle(V(79.4, -34.9, 0), V(0, 0, 1), 1.8),
    Part.Circle(V(79.4, -3.2, 0), V(0, 0, 1), 1.8),
    Part.Circle(V(79.4, 44.5, 0), V(0, 0, 1), 1.8),
], False)
sketch16.addConstraint([
    Sketcher.Constraint("Equal", 0, 1),
    Sketcher.Constraint("Equal", 1, 2),
    Sketcher.Constraint("Equal", 2, 3),
    Sketcher.Constraint("Equal", 3, 4),
    Sketcher.Constraint("Equal", 4, 5),
    Sketcher.Constraint("Equal", 5, 6),
    Sketcher.Constraint("Equal", 6, 7),
    Sketcher.Constraint("Equal", 7, 8),
    Sketcher.Constraint("Equal", 8, 9),
    Sketcher.Constraint("Equal", 9, 10),
    Sketcher.Constraint("Symmetric", 4, 3, 6, 3, -2),
    Sketcher.Constraint("Symmetric", 2, 3, 7, 3, -2),
    Sketcher.Constraint("Symmetric", 3, 3, 8, 3, -2),
    Sketcher.Constraint("Symmetric", 1, 3, 9, 3, -2),
    Sketcher.Constraint("Symmetric", 0, 3, 10, 3, -2),
    Sketcher.Constraint("PointOnObject", 5, 3, -2),
    Sketcher.Constraint("Horizontal", 2, 3, 4, 3),
    Sketcher.Constraint("Horizontal", 4, 3, 5, 3),
    Sketcher.Constraint("Vertical", 0, 3, 1, 3),
    Sketcher.Constraint("Vertical", 1, 3, 3, 3),
    Sketcher.Constraint("Diameter", 0, Q("0.144 in")),
    Sketcher.Constraint("DistanceX", 4, 3, 6, 3, Q("3 in")),
    Sketcher.Constraint("DistanceY", 2, 3, 3, 3, Q("0.5 in")),
    Sketcher.Constraint("DistanceX", 2, 3, 7, 3, Q("5.5 in")),
    Sketcher.Constraint("DistanceY", -1, 1, 0, 3, Q("1.75 in")),
    Sketcher.Constraint("DistanceY", 2, 3, 1, 3, Q("1.75 in")),
    Sketcher.Constraint("DistanceX", 0, 3, -1, 1, Q("3.125 in")),
    Sketcher.Constraint("DistanceY", 1, 3, -1, 1, Q("0.125 in")),
])
doc.recompute()
hole = body.newObject("PartDesign::Hole", "Hole")
hole.Profile = sketch16
hole.ThreadType = "None"
hole.Diameter = Q("0.144 in")
hole.DepthType = "ThroughAll"
hole.Reversed = True

sketch17 = body.newObject("Sketcher::SketchObject", "Sketch016")
sketch17.AttachmentSupport = (doc.getObject("XZ_Plane"), [""])
sketch17.MapMode = "FlatFace"
sketch17.AttachmentOffset = App.Placement(V(0, 0, -0.25 * 25.4), App.Rotation())
sketch17.addGeometry([
    Part.Circle(V(-38.1, 50.8, 0), V(0, 0, 1), 2),
    Part.Circle(V(0, 88.9, 0), V(0, 0, 1), 2),
    Part.Circle(V(38.1, 50.8, 0), V(0, 0, 1), 2),
], False)
sketch17.addConstraint([
    Sketcher.Constraint("Equal", 0, 1),
    Sketcher.Constraint("Equal", 1, 2),
    Sketcher.Constraint("Symmetric", 0, 3, 2, 3, -2),
    Sketcher.Constraint("PointOnObject", 1, 3, -2),
    Sketcher.Constraint("Diameter", 0, Q("0.159 in")),
    Sketcher.Constraint("DistanceY", -1, 1, 0, 3, Q("2 in")),
    Sketcher.Constraint("DistanceX", 0, 3, 2, 3, Q("3 in")),
    Sketcher.Constraint("DistanceY", -1, 1, 1, 3, Q("3.5 in")),
])
doc.recompute()
hole2 = body.newObject("PartDesign::Hole", "Hole001")
hole2.Profile = sketch17
hole2.ThreadType = "None"
hole2.Diameter = Q("0.159 in")
hole2.DepthType = "ThroughAll"
hole2.Reversed = True

doc.recompute()
